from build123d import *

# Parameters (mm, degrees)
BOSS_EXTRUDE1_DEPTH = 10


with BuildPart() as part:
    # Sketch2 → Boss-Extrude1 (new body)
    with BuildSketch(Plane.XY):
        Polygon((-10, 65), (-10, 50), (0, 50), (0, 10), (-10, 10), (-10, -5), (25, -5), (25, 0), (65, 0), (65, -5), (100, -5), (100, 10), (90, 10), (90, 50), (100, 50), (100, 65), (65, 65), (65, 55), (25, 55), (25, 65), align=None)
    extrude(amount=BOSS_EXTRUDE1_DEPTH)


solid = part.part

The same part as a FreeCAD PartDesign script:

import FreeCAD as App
import Part
import Sketcher
Q = App.Units.Quantity

doc = App.newDocument("Part")
params = doc.addObject("Spreadsheet::Sheet", "Params")
for row, (alias, value) in enumerate([
    ("sketch1_width", "10 mm"),
    ("sketch1_width2", "35 mm"),
    ("sketch1_width3", "40 mm"),
    ("sketch1_height", "15 mm"),
    ("sketch1_height2", "5 mm"),
    ("pad1_length", "10 mm"),
], start=1):
    params.set(f"A{row}", alias)
    params.set(f"B{row}", "=" + value)
    params.setAlias(f"B{row}", alias)

body = doc.addObject("PartDesign::Body", "Body")

sketch1 = body.newObject("Sketcher::SketchObject", "Sketch")
sketch1.AttachmentSupport = (doc.getObject("XY_Plane"), [""])
sketch1.MapMode = "FlatFace"
sketch1.addGeometry([
    Part.LineSegment(App.Vector(-10, 65, 0), App.Vector(-10, 50, 0)),
    Part.LineSegment(App.Vector(-10, 50, 0), App.Vector(0, 50, 0)),
    Part.LineSegment(App.Vector(0, 50, 0), App.Vector(0, 10, 0)),
    Part.LineSegment(App.Vector(0, 10, 0), App.Vector(-10, 10, 0)),
    Part.LineSegment(App.Vector(-10, 10, 0), App.Vector(-10, -5, 0)),
    Part.LineSegment(App.Vector(-10, -5, 0), App.Vector(25, -5, 0)),
    Part.LineSegment(App.Vector(25, -5, 0), App.Vector(25, 0, 0)),
    Part.LineSegment(App.Vector(25, 0, 0), App.Vector(65, 0, 0)),
    Part.LineSegment(App.Vector(65, 0, 0), App.Vector(65, -5, 0)),
    Part.LineSegment(App.Vector(65, -5, 0), App.Vector(100, -5, 0)),
    Part.LineSegment(App.Vector(100, -5, 0), App.Vector(100, 10, 0)),
    Part.LineSegment(App.Vector(100, 10, 0), App.Vector(90, 10, 0)),
    Part.LineSegment(App.Vector(90, 10, 0), App.Vector(90, 50, 0)),
    Part.LineSegment(App.Vector(90, 50, 0), App.Vector(100, 50, 0)),
    Part.LineSegment(App.Vector(100, 50, 0), App.Vector(100, 65, 0)),
    Part.LineSegment(App.Vector(100, 65, 0), App.Vector(65, 65, 0)),
    Part.LineSegment(App.Vector(65, 65, 0), App.Vector(65, 55, 0)),
    Part.LineSegment(App.Vector(65, 55, 0), App.Vector(25, 55, 0)),
    Part.LineSegment(App.Vector(25, 55, 0), App.Vector(25, 65, 0)),
    Part.LineSegment(App.Vector(25, 65, 0), App.Vector(-10, 65, 0)),
], False)
sketch1.addConstraint([
    Sketcher.Constraint("Coincident", 0, 2, 1, 1),
    Sketcher.Constraint("Coincident", 1, 2, 2, 1),
    Sketcher.Constraint("Coincident", 2, 2, 3, 1),
    Sketcher.Constraint("Coincident", 3, 2, 4, 1),
    Sketcher.Constraint("Coincident", 4, 2, 5, 1),
    Sketcher.Constraint("Coincident", 5, 2, 6, 1),
    Sketcher.Constraint("Coincident", 6, 2, 7, 1),
    Sketcher.Constraint("Coincident", 7, 2, 8, 1),
    Sketcher.Constraint("Coincident", 8, 2, 9, 1),
    Sketcher.Constraint("Coincident", 9, 2, 10, 1),
    Sketcher.Constraint("Coincident", 10, 2, 11, 1),
    Sketcher.Constraint("Coincident", 11, 2, 12, 1),
    Sketcher.Constraint("Coincident", 12, 2, 13, 1),
    Sketcher.Constraint("Coincident", 13, 2, 14, 1),
    Sketcher.Constraint("Coincident", 14, 2, 15, 1),
    Sketcher.Constraint("Coincident", 15, 2, 16, 1),
    Sketcher.Constraint("Coincident", 16, 2, 17, 1),
    Sketcher.Constraint("Coincident", 17, 2, 18, 1),
    Sketcher.Constraint("Coincident", 18, 2, 19, 1),
    Sketcher.Constraint("Coincident", 19, 2, 0, 1),
    Sketcher.Constraint("Vertical", 0),
    Sketcher.Constraint("Horizontal", 1),
    Sketcher.Constraint("Vertical", 2),
    Sketcher.Constraint("Horizontal", 3),
    Sketcher.Constraint("Vertical", 4),
    Sketcher.Constraint("Horizontal", 5),
    Sketcher.Constraint("Vertical", 6),
    Sketcher.Constraint("Horizontal", 7),
    Sketcher.Constraint("Vertical", 8),
    Sketcher.Constraint("Horizontal", 9),
    Sketcher.Constraint("Vertical", 10),
    Sketcher.Constraint("Horizontal", 11),
    Sketcher.Constraint("Vertical", 12),
    Sketcher.Constraint("Horizontal", 13),
    Sketcher.Constraint("Vertical", 14),
    Sketcher.Constraint("Horizontal", 15),
    Sketcher.Constraint("Vertical", 16),
    Sketcher.Constraint("Horizontal", 17),
    Sketcher.Constraint("Vertical", 18),
    Sketcher.Constraint("Horizontal", 19),
    Sketcher.Constraint("PointOnObject", 1, 2, -2),
    Sketcher.Constraint("PointOnObject", 6, 2, -1),
    Sketcher.Constraint("Horizontal", 5, 2, 8, 2),
    Sketcher.Constraint("Horizontal", 3, 2, 10, 2),
    Sketcher.Constraint("Horizontal", 1, 2, 12, 2),
    Sketcher.Constraint("Horizontal", 15, 2, 18, 2),
    Sketcher.Constraint("Vertical", 0, 2, 3, 2),
    Sketcher.Constraint("Vertical", 10, 2, 13, 2),
    Sketcher.Constraint("Vertical", 8, 2, 15, 2),
    Sketcher.Constraint("Vertical", 6, 2, 17, 2),
    Sketcher.Constraint("Equal", 5, 9),
    Sketcher.Constraint("Equal", 3, 11),
    Sketcher.Constraint("Equal", 17, 2),
    Sketcher.Constraint("Equal", 0, 4),
    Sketcher.Constraint("Equal", 13, 16),
    Sketcher.Constraint("DistanceX", 1, 1, 1, 2, Q("10 mm")),
    Sketcher.Constraint("DistanceX", 5, 1, 5, 2, Q("35 mm")),
    Sketcher.Constraint("DistanceX", 7, 1, 7, 2, Q("40 mm")),
    Sketcher.Constraint("DistanceY", 0, 2, 0, 1, Q("15 mm")),
    Sketcher.Constraint("DistanceY", 6, 1, 6, 2, Q("5 mm")),
])
sketch1.setExpression("Constraints[55]", "Params.sketch1_width")
sketch1.setExpression("Constraints[56]", "Params.sketch1_width2")
sketch1.setExpression("Constraints[57]", "Params.sketch1_width3")
sketch1.setExpression("Constraints[58]", "Params.sketch1_height")
sketch1.setExpression("Constraints[59]", "Params.sketch1_height2")
pad1 = body.newObject("PartDesign::Pad", "Pad")
pad1.Profile = sketch1
pad1.setExpression("Length", "Params.pad1_length")

doc.recompute()
